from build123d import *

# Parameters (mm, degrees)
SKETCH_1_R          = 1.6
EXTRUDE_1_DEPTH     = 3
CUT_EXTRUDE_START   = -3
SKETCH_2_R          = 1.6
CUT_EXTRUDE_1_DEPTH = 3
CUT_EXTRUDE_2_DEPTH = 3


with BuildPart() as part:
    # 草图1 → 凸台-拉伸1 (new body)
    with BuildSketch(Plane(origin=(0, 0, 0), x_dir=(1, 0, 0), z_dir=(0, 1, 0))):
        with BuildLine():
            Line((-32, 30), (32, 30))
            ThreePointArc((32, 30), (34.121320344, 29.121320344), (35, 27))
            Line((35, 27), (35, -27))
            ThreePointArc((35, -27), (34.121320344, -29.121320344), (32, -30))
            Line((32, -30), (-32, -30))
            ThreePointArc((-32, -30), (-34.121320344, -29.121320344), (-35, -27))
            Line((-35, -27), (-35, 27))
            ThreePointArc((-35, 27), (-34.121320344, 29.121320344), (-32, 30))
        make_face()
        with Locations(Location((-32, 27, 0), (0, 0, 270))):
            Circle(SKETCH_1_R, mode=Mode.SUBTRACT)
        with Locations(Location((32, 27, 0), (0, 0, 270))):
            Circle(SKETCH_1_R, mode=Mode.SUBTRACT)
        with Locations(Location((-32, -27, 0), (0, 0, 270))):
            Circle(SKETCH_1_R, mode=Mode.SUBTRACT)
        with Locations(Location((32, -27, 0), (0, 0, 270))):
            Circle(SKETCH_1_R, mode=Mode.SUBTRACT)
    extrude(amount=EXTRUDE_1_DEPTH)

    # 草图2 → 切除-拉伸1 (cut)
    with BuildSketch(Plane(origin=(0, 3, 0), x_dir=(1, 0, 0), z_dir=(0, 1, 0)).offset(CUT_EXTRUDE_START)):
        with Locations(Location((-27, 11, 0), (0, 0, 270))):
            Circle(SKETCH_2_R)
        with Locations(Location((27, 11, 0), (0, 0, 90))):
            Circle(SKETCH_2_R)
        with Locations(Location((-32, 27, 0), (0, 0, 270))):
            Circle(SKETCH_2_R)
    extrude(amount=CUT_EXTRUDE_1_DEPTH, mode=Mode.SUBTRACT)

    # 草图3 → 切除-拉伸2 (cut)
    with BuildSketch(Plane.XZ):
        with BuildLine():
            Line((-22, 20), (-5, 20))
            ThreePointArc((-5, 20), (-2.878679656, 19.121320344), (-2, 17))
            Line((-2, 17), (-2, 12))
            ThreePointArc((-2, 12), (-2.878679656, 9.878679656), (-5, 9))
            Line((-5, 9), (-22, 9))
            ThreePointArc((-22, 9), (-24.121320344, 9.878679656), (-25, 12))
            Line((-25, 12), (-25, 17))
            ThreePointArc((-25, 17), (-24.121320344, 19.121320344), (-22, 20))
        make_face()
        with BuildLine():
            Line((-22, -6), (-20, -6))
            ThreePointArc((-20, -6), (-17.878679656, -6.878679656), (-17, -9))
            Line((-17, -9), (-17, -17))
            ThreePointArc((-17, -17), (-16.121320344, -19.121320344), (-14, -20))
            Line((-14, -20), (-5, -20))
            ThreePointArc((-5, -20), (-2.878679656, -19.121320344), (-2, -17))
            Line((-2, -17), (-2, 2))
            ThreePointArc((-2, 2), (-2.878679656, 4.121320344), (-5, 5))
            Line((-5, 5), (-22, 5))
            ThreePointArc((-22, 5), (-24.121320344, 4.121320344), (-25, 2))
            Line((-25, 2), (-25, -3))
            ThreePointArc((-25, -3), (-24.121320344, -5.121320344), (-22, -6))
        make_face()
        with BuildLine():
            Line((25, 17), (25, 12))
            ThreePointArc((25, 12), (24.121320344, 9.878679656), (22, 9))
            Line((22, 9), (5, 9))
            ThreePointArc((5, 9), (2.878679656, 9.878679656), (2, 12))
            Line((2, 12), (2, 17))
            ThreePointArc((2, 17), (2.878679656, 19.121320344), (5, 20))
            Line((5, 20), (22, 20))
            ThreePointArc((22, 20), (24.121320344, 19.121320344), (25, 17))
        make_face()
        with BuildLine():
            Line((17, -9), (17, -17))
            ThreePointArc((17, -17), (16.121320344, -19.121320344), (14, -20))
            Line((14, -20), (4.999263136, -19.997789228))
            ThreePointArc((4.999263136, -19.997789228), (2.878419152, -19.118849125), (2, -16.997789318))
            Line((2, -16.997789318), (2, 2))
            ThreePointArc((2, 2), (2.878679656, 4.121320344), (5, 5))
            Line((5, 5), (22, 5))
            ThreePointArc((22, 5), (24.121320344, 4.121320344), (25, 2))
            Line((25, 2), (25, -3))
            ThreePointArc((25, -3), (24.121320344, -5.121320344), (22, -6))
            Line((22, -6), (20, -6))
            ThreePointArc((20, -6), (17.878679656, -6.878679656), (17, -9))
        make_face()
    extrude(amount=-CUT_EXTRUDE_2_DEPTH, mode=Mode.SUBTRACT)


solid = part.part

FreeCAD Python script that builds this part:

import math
import FreeCAD as App
import Part
import Sketcher

V = App.Vector
Q = App.Units.Quantity

doc = App.newDocument("Part")
params = doc.addObject("Spreadsheet::Sheet", "Params")
for row, (alias, value) in enumerate([
    ("sketch1_radius", "3 mm"),
    ("sketch1_diameter", "3.2 mm"),
    ("sketch1_width", "64 mm"),
    ("sketch1_height", "54 mm"),
    ("pad1_length", "3 mm"),
    ("sketch2_diameter", "3.2 mm"),
    ("pocket1_length", "3 mm"),
    ("sketch3_radius", "3 mm"),
    ("sketch3_width", "17 mm"),
    ("sketch3_width2", "2 mm"),
    ("sketch3_height", "5 mm"),
    ("sketch3_height2", "8 mm"),
    ("pocket2_length", "3 mm"),
], start=1):
    params.set(f"A{row}", alias)
    params.set(f"B{row}", "=" + value)
    params.setAlias(f"B{row}", alias)

body = doc.addObject("PartDesign::Body", "Body")

sketch1 = body.newObject("Sketcher::SketchObject", "Sketch")
sketch1.AttachmentSupport = (doc.getObject("XZ_Plane"), [""])
sketch1.MapMode = "FlatFace"
sketch1.addGeometry([
    Part.LineSegment(V(32, -30, 0), V(-32, -30, 0)),
    Part.ArcOfCircle(Part.Circle(V(-32, -27, 0), V(0, 0, 1), 3), math.radians(180), math.radians(270)),
    Part.LineSegment(V(-35, -27, 0), V(-35, 27, 0)),
    Part.ArcOfCircle(Part.Circle(V(-32, 27, 0), V(0, 0, 1), 3), math.radians(90), math.radians(180)),
    Part.LineSegment(V(-32, 30, 0), V(32, 30, 0)),
    Part.ArcOfCircle(Part.Circle(V(32, 27, 0), V(0, 0, 1), 3), math.radians(0), math.radians(90)),
    Part.LineSegment(V(35, 27, 0), V(35, -27, 0)),
    Part.ArcOfCircle(Part.Circle(V(32, -27, 0), V(0, 0, 1), 3), math.radians(-90), math.radians(0)),
    Part.Circle(V(32, 27, 0), V(0, 0, 1), 1.6),
    Part.Circle(V(-32, 27, 0), V(0, 0, 1), 1.6),
    Part.Circle(V(32, -27, 0), V(0, 0, 1), 1.6),
    Part.Circle(V(-32, -27, 0), V(0, 0, 1), 1.6),
], False)
sketch1.addConstraint([
    Sketcher.Constraint("Tangent", 0, 2, 1, 2),
    Sketcher.Constraint("Tangent", 1, 1, 2, 1),
    Sketcher.Constraint("Tangent", 2, 2, 3, 2),
    Sketcher.Constraint("Tangent", 3, 1, 4, 1),
    Sketcher.Constraint("Tangent", 4, 2, 5, 2),
    Sketcher.Constraint("Tangent", 5, 1, 6, 1),
    Sketcher.Constraint("Tangent", 6, 2, 7, 2),
    Sketcher.Constraint("Tangent", 7, 1, 0, 1),
    Sketcher.Constraint("Horizontal", 0),
    Sketcher.Constraint("Vertical", 2),
    Sketcher.Constraint("Horizontal", 4),
    Sketcher.Constraint("Vertical", 6),
    Sketcher.Constraint("Coincident", 8, 3, 5, 3),
    Sketcher.Constraint("Coincident", 9, 3, 3, 3),
    Sketcher.Constraint("Coincident", 10, 3, 7, 3),
    Sketcher.Constraint("Coincident", 11, 3, 1, 3),
    Sketcher.Constraint("Equal", 1, 3),
    Sketcher.Constraint("Equal", 3, 5),
    Sketcher.Constraint("Equal", 5, 7),
    Sketcher.Constraint("Equal", 8, 9),
    Sketcher.Constraint("Equal", 9, 10),
    Sketcher.Constraint("Equal", 10, 11),
    Sketcher.Constraint("Symmetric", 1, 3, 5, 3, -1, 1),
    Sketcher.Constraint("Radius", 1, Q("3 mm")),
    Sketcher.Constraint("Diameter", 8, Q("3.2 mm")),
    Sketcher.Constraint("DistanceX", 0, 2, 0, 1, Q("64 mm")),
    Sketcher.Constraint("DistanceY", 2, 1, 2, 2, Q("54 mm")),
])
sketch1.setExpression("Constraints[23]", "Params.sketch1_radius")
sketch1.setExpression("Constraints[24]", "Params.sketch1_diameter")
sketch1.setExpression("Constraints[25]", "Params.sketch1_width")
sketch1.setExpression("Constraints[26]", "Params.sketch1_height")
pad1 = body.newObject("PartDesign::Pad", "Pad")
pad1.Profile = sketch1
pad1.setExpression("Length", "Params.pad1_length")
pad1.Reversed = True

sketch2 = body.newObject("Sketcher::SketchObject", "Sketch001")
sketch2.AttachmentSupport = (doc.getObject("XZ_Plane"), [""])
sketch2.MapMode = "FlatFace"
sketch2.addGeometry([
    Part.Circle(V(-27, -11, 0), V(0, 0, 1), 1.6),
    Part.Circle(V(27, -11, 0), V(0, 0, 1), 1.6),
    Part.Circle(V(-32, -27, 0), V(0, 0, 1), 1.6),
], False)
sketch2.addConstraint([
    Sketcher.Constraint("Equal", 0, 1),
    Sketcher.Constraint("Equal", 1, 2),
    Sketcher.Constraint("Symmetric", 0, 3, 1, 3, -2),
    Sketcher.Constraint("Diameter", 0, Q("3.2 mm")),
    Sketcher.Constraint("DistanceX", 0, 3, -1, 1, Q("27 mm")),
    Sketcher.Constraint("DistanceY", 0, 3, -1, 1, Q("11 mm")),
    Sketcher.Constraint("DistanceX", 2, 3, -1, 1, Q("32 mm")),
    Sketcher.Constraint("DistanceY", 2, 3, -1, 1, Q("27 mm")),
])
sketch2.setExpression("Constraints[3]", "Params.sketch2_diameter")
pocket1 = body.newObject("PartDesign::Pocket", "Pocket")
pocket1.Profile = sketch2
pocket1.setExpression("Length", "Params.pocket1_length")

sketch3 = body.newObject("Sketcher::SketchObject", "Sketch002")
sketch3.AttachmentSupport = (doc.getObject("XZ_Plane"), [""])
sketch3.MapMode = "FlatFace"
sketch3.addGeometry([
    Part.LineSegment(V(-5, 20, 0), V(-22, 20, 0)),
    Part.ArcOfCircle(Part.Circle(V(-22, 17, 0), V(0, 0, 1), 3), math.radians(90), math.radians(180)),
    Part.LineSegment(V(-25, 17, 0), V(-25, 12, 0)),
    Part.ArcOfCircle(Part.Circle(V(-22, 12, 0), V(0, 0, 1), 3), math.radians(180), math.radians(270)),
    Part.LineSegment(V(-22, 9, 0), V(-5, 9, 0)),
    Part.ArcOfCircle(Part.Circle(V(-5, 12, 0), V(0, 0, 1), 3), math.radians(-90), math.radians(0)),
    Part.LineSegment(V(-2, 12, 0), V(-2, 17, 0)),
    Part.ArcOfCircle(Part.Circle(V(-5, 17, 0), V(0, 0, 1), 3), math.radians(0), math.radians(90)),
    Part.LineSegment(V(-22, -6, 0), V(-20, -6, 0)),
    Part.ArcOfCircle(Part.Circle(V(-20, -9, 0), V(0, 0, 1), 3), math.radians(0), math.radians(90)),
    Part.LineSegment(V(-17, -9, 0), V(-17, -17, 0)),
    Part.ArcOfCircle(Part.Circle(V(-14, -17, 0), V(0, 0, 1), 3), math.radians(180), math.radians(270)),
    Part.LineSegment(V(-14, -20, 0), V(-5, -20, 0)),
    Part.ArcOfCircle(Part.Circle(V(-5, -17, 0), V(0, 0, 1), 3), math.radians(-90), math.radians(0)),
    Part.LineSegment(V(-2, -17, 0), V(-2, 2, 0)),
    Part.ArcOfCircle(Part.Circle(V(-5, 2, 0), V(0, 0, 1), 3), math.radians(0), math.radians(90)),
    Part.LineSegment(V(-5, 5, 0), V(-22, 5, 0)),
    Part.ArcOfCircle(Part.Circle(V(-22, 2, 0), V(0, 0, 1), 3), math.radians(90), math.radians(180)),
    Part.LineSegment(V(-25, 2, 0), V(-25, -3, 0)),
    Part.ArcOfCircle(Part.Circle(V(-22, -3, 0), V(0, 0, 1), 3), math.radians(180), math.radians(270)),
    Part.LineSegment(V(25, 12, 0), V(25, 17, 0)),
    Part.ArcOfCircle(Part.Circle(V(22, 17, 0), V(0, 0, 1), 3), math.radians(0), math.radians(90)),
    Part.LineSegment(V(22, 20, 0), V(5, 20, 0)),
    Part.ArcOfCircle(Part.Circle(V(5, 17, 0), V(0, 0, 1), 3), math.radians(90), math.radians(180)),
    Part.LineSegment(V(2, 17, 0), V(2, 12, 0)),
    Part.ArcOfCircle(Part.Circle(V(5, 12, 0), V(0, 0, 1), 3), math.radians(180), math.radians(270)),
    Part.LineSegment(V(5, 9, 0), V(22, 9, 0)),
    Part.ArcOfCircle(Part.Circle(V(22, 12, 0), V(0, 0, 1), 3), math.radians(-90), math.radians(0)),
    Part.LineSegment(V(17, -17, 0), V(17, -9, 0)),
    Part.ArcOfCircle(Part.Circle(V(20, -9, 0), V(0, 0, 1), 3), math.radians(90), math.radians(180)),
    Part.LineSegment(V(20, -6, 0), V(22, -6, 0)),
    Part.ArcOfCircle(Part.Circle(V(22, -3, 0), V(0, 0, 1), 3), math.radians(-90), math.radians(0)),
    Part.LineSegment(V(25, -3, 0), V(25, 2, 0)),
    Part.ArcOfCircle(Part.Circle(V(22, 2, 0), V(0, 0, 1), 3), math.radians(0), math.radians(90)),
    Part.LineSegment(V(22, 5, 0), V(5, 5, 0)),
    Part.ArcOfCircle(Part.Circle(V(5, 2, 0), V(0, 0, 1), 3), math.radians(90), math.radians(180)),
    Part.LineSegment(V(2, 2, 0), V(2, -16.997789, 0)),
    Part.ArcOfCircle(Part.Circle(V(5, -16.997789, 0), V(0, 0, 1), 3), math.radians(-180), math.radians(-90.014073)),
    Part.LineSegment(V(4.999263, -19.997789, 0), V(14, -20, 0)),
    Part.ArcOfCircle(Part.Circle(V(14, -17, 0), V(0, 0, 1), 3), math.radians(-90), math.radians(0)),
], False)
sketch3.addConstraint([
    Sketcher.Constraint("Tangent", 0, 2, 1, 1),
    Sketcher.Constraint("Tangent", 1, 2, 2, 1),
    Sketcher.Constraint("Tangent", 2, 2, 3, 1),
    Sketcher.Constraint("Tangent", 3, 2, 4, 1),
    Sketcher.Constraint("Tangent", 4, 2, 5, 1),
    Sketcher.Constraint("Tangent", 5, 2, 6, 1),
    Sketcher.Constraint("Tangent", 6, 2, 7, 1),
    Sketcher.Constraint("Tangent", 7, 2, 0, 1),
    Sketcher.Constraint("Tangent", 8, 2, 9, 2),
    Sketcher.Constraint("Tangent", 9, 1, 10, 1),
    Sketcher.Constraint("Tangent", 10, 2, 11, 1),
    Sketcher.Constraint("Tangent", 11, 2, 12, 1),
    Sketcher.Constraint("Tangent", 12, 2, 13, 1),
    Sketcher.Constraint("Tangent", 13, 2, 14, 1),
    Sketcher.Constraint("Tangent", 14, 2, 15, 1),
    Sketcher.Constraint("Tangent", 15, 2, 16, 1),
    Sketcher.Constraint("Tangent", 16, 2, 17, 1),
    Sketcher.Constraint("Tangent", 17, 2, 18, 1),
    Sketcher.Constraint("Tangent", 18, 2, 19, 1),
    Sketcher.Constraint("Tangent", 19, 2, 8, 1),
    Sketcher.Constraint("Tangent", 20, 2, 21, 1),
    Sketcher.Constraint("Tangent", 21, 2, 22, 1),
    Sketcher.Constraint("Tangent", 22, 2, 23, 1),
    Sketcher.Constraint("Tangent", 23, 2, 24, 1),
    Sketcher.Constraint("Tangent", 24, 2, 25, 1),
    Sketcher.Constraint("Tangent", 25, 2, 26, 1),
    Sketcher.Constraint("Tangent", 26, 2, 27, 1),
    Sketcher.Constraint("Tangent", 27, 2, 20, 1),
    Sketcher.Constraint("Tangent", 28, 2, 29, 2),
    Sketcher.Constraint("Tangent", 29, 1, 30, 1),
    Sketcher.Constraint("Tangent", 30, 2, 31, 1),
    Sketcher.Constraint("Tangent", 31, 2, 32, 1),
    Sketcher.Constraint("Tangent", 32, 2, 33, 1),
    Sketcher.Constraint("Tangent", 33, 2, 34, 1),
    Sketcher.Constraint("Tangent", 34, 2, 35, 1),
    Sketcher.Constraint("Tangent", 35, 2, 36, 1),
    Sketcher.Constraint("Tangent", 36, 2, 37, 1),
    Sketcher.Constraint("Tangent", 37, 2, 38, 1),
    Sketcher.Constraint("Coincident", 38, 2, 39, 1),
    Sketcher.Constraint("Tangent", 39, 2, 28, 1),
    Sketcher.Constraint("Horizontal", 0),
    Sketcher.Constraint("Vertical", 2),
    Sketcher.Constraint("Horizontal", 4),
    Sketcher.Constraint("Vertical", 6),
    Sketcher.Constraint("Horizontal", 8),
    Sketcher.Constraint("Vertical", 10),
    Sketcher.Constraint("Horizontal", 12),
    Sketcher.Constraint("Vertical", 14),
    Sketcher.Constraint("Horizontal", 16),
    Sketcher.Constraint("Vertical", 18),
    Sketcher.Constraint("Vertical", 20),
    Sketcher.Constraint("Horizontal", 22),
    Sketcher.Constraint("Vertical", 24),
    Sketcher.Constraint("Horizontal", 26),
    Sketcher.Constraint("Vertical", 28),
    Sketcher.Constraint("Horizontal", 30),
    Sketcher.Constraint("Vertical", 32),
    Sketcher.Constraint("Horizontal", 34),
    Sketcher.Constraint("Vertical", 36),
    Sketcher.Constraint("Equal", 1, 3),
    Sketcher.Constraint("Equal", 3, 5),
    Sketcher.Constraint("Equal", 5, 7),
    Sketcher.Constraint("Equal", 7, 9),
    Sketcher.Constraint("Equal", 9, 11),
    Sketcher.Constraint("Equal", 11, 13),
    Sketcher.Constraint("Equal", 13, 15),
    Sketcher.Constraint("Equal", 15, 17),
    Sketcher.Constraint("Equal", 17, 19),
    Sketcher.Constraint("Equal", 19, 21),
    Sketcher.Constraint("Equal", 21, 23),
    Sketcher.Constraint("Equal", 23, 25),
    Sketcher.Constraint("Equal", 25, 27),
    Sketcher.Constraint("Equal", 27, 29),
    Sketcher.Constraint("Equal", 29, 31),
    Sketcher.Constraint("Equal", 31, 33),
    Sketcher.Constraint("Equal", 33, 35),
    Sketcher.Constraint("Equal", 35, 37),
    Sketcher.Constraint("Equal", 37, 39),
    Sketcher.Constraint("Symmetric", 13, 3, 23, 3, -1, 1),
    Sketcher.Constraint("Symmetric", 1, 3, 21, 3, -2),
    Sketcher.Constraint("Symmetric", 5, 3, 25, 3, -2),
    Sketcher.Constraint("Symmetric", 9, 3, 29, 3, -2),
    Sketcher.Constraint("Symmetric", 17, 3, 33, 3, -2),
    Sketcher.Constraint("Symmetric", 11, 2, 38, 2, -2),
    Sketcher.Constraint("Vertical", 3, 3, 17, 3),
    Sketcher.Constraint("Vertical", 25, 3, 35, 3),
    Sketcher.Constraint("Equal", 6, 18),
    Sketcher.Constraint("Radius", 1, Q("3 mm")),
    Sketcher.Constraint("DistanceX", 0, 2, 0, 1, Q("17 mm")),
    Sketcher.Constraint("DistanceX", 8, 1, 8, 2, Q("2 mm")),
    Sketcher.Constraint("DistanceY", 2, 2, 2, 1, Q("5 mm")),
    Sketcher.Constraint("DistanceY", 10, 2, 10, 1, Q("8 mm")),
    Sketcher.Constraint("DistanceX", 1, 3, -1, 1, Q("22 mm")),
    Sketcher.Constraint("DistanceY", -1, 1, 1, 3, Q("17 mm")),
    Sketcher.Constraint("DistanceY", 36, 2, 36, 1, Q("18.997789 mm")),
])
sketch3.setExpression("Constraints[87]", "Params.sketch3_radius")
sketch3.setExpression("Constraints[88]", "Params.sketch3_width")
sketch3.setExpression("Constraints[89]", "Params.sketch3_width2")
sketch3.setExpression("Constraints[90]", "Params.sketch3_height")
sketch3.setExpression("Constraints[91]", "Params.sketch3_height2")
pocket2 = body.newObject("PartDesign::Pocket", "Pocket001")
pocket2.Profile = sketch3
pocket2.setExpression("Length", "Params.pocket2_length")

doc.recompute()
